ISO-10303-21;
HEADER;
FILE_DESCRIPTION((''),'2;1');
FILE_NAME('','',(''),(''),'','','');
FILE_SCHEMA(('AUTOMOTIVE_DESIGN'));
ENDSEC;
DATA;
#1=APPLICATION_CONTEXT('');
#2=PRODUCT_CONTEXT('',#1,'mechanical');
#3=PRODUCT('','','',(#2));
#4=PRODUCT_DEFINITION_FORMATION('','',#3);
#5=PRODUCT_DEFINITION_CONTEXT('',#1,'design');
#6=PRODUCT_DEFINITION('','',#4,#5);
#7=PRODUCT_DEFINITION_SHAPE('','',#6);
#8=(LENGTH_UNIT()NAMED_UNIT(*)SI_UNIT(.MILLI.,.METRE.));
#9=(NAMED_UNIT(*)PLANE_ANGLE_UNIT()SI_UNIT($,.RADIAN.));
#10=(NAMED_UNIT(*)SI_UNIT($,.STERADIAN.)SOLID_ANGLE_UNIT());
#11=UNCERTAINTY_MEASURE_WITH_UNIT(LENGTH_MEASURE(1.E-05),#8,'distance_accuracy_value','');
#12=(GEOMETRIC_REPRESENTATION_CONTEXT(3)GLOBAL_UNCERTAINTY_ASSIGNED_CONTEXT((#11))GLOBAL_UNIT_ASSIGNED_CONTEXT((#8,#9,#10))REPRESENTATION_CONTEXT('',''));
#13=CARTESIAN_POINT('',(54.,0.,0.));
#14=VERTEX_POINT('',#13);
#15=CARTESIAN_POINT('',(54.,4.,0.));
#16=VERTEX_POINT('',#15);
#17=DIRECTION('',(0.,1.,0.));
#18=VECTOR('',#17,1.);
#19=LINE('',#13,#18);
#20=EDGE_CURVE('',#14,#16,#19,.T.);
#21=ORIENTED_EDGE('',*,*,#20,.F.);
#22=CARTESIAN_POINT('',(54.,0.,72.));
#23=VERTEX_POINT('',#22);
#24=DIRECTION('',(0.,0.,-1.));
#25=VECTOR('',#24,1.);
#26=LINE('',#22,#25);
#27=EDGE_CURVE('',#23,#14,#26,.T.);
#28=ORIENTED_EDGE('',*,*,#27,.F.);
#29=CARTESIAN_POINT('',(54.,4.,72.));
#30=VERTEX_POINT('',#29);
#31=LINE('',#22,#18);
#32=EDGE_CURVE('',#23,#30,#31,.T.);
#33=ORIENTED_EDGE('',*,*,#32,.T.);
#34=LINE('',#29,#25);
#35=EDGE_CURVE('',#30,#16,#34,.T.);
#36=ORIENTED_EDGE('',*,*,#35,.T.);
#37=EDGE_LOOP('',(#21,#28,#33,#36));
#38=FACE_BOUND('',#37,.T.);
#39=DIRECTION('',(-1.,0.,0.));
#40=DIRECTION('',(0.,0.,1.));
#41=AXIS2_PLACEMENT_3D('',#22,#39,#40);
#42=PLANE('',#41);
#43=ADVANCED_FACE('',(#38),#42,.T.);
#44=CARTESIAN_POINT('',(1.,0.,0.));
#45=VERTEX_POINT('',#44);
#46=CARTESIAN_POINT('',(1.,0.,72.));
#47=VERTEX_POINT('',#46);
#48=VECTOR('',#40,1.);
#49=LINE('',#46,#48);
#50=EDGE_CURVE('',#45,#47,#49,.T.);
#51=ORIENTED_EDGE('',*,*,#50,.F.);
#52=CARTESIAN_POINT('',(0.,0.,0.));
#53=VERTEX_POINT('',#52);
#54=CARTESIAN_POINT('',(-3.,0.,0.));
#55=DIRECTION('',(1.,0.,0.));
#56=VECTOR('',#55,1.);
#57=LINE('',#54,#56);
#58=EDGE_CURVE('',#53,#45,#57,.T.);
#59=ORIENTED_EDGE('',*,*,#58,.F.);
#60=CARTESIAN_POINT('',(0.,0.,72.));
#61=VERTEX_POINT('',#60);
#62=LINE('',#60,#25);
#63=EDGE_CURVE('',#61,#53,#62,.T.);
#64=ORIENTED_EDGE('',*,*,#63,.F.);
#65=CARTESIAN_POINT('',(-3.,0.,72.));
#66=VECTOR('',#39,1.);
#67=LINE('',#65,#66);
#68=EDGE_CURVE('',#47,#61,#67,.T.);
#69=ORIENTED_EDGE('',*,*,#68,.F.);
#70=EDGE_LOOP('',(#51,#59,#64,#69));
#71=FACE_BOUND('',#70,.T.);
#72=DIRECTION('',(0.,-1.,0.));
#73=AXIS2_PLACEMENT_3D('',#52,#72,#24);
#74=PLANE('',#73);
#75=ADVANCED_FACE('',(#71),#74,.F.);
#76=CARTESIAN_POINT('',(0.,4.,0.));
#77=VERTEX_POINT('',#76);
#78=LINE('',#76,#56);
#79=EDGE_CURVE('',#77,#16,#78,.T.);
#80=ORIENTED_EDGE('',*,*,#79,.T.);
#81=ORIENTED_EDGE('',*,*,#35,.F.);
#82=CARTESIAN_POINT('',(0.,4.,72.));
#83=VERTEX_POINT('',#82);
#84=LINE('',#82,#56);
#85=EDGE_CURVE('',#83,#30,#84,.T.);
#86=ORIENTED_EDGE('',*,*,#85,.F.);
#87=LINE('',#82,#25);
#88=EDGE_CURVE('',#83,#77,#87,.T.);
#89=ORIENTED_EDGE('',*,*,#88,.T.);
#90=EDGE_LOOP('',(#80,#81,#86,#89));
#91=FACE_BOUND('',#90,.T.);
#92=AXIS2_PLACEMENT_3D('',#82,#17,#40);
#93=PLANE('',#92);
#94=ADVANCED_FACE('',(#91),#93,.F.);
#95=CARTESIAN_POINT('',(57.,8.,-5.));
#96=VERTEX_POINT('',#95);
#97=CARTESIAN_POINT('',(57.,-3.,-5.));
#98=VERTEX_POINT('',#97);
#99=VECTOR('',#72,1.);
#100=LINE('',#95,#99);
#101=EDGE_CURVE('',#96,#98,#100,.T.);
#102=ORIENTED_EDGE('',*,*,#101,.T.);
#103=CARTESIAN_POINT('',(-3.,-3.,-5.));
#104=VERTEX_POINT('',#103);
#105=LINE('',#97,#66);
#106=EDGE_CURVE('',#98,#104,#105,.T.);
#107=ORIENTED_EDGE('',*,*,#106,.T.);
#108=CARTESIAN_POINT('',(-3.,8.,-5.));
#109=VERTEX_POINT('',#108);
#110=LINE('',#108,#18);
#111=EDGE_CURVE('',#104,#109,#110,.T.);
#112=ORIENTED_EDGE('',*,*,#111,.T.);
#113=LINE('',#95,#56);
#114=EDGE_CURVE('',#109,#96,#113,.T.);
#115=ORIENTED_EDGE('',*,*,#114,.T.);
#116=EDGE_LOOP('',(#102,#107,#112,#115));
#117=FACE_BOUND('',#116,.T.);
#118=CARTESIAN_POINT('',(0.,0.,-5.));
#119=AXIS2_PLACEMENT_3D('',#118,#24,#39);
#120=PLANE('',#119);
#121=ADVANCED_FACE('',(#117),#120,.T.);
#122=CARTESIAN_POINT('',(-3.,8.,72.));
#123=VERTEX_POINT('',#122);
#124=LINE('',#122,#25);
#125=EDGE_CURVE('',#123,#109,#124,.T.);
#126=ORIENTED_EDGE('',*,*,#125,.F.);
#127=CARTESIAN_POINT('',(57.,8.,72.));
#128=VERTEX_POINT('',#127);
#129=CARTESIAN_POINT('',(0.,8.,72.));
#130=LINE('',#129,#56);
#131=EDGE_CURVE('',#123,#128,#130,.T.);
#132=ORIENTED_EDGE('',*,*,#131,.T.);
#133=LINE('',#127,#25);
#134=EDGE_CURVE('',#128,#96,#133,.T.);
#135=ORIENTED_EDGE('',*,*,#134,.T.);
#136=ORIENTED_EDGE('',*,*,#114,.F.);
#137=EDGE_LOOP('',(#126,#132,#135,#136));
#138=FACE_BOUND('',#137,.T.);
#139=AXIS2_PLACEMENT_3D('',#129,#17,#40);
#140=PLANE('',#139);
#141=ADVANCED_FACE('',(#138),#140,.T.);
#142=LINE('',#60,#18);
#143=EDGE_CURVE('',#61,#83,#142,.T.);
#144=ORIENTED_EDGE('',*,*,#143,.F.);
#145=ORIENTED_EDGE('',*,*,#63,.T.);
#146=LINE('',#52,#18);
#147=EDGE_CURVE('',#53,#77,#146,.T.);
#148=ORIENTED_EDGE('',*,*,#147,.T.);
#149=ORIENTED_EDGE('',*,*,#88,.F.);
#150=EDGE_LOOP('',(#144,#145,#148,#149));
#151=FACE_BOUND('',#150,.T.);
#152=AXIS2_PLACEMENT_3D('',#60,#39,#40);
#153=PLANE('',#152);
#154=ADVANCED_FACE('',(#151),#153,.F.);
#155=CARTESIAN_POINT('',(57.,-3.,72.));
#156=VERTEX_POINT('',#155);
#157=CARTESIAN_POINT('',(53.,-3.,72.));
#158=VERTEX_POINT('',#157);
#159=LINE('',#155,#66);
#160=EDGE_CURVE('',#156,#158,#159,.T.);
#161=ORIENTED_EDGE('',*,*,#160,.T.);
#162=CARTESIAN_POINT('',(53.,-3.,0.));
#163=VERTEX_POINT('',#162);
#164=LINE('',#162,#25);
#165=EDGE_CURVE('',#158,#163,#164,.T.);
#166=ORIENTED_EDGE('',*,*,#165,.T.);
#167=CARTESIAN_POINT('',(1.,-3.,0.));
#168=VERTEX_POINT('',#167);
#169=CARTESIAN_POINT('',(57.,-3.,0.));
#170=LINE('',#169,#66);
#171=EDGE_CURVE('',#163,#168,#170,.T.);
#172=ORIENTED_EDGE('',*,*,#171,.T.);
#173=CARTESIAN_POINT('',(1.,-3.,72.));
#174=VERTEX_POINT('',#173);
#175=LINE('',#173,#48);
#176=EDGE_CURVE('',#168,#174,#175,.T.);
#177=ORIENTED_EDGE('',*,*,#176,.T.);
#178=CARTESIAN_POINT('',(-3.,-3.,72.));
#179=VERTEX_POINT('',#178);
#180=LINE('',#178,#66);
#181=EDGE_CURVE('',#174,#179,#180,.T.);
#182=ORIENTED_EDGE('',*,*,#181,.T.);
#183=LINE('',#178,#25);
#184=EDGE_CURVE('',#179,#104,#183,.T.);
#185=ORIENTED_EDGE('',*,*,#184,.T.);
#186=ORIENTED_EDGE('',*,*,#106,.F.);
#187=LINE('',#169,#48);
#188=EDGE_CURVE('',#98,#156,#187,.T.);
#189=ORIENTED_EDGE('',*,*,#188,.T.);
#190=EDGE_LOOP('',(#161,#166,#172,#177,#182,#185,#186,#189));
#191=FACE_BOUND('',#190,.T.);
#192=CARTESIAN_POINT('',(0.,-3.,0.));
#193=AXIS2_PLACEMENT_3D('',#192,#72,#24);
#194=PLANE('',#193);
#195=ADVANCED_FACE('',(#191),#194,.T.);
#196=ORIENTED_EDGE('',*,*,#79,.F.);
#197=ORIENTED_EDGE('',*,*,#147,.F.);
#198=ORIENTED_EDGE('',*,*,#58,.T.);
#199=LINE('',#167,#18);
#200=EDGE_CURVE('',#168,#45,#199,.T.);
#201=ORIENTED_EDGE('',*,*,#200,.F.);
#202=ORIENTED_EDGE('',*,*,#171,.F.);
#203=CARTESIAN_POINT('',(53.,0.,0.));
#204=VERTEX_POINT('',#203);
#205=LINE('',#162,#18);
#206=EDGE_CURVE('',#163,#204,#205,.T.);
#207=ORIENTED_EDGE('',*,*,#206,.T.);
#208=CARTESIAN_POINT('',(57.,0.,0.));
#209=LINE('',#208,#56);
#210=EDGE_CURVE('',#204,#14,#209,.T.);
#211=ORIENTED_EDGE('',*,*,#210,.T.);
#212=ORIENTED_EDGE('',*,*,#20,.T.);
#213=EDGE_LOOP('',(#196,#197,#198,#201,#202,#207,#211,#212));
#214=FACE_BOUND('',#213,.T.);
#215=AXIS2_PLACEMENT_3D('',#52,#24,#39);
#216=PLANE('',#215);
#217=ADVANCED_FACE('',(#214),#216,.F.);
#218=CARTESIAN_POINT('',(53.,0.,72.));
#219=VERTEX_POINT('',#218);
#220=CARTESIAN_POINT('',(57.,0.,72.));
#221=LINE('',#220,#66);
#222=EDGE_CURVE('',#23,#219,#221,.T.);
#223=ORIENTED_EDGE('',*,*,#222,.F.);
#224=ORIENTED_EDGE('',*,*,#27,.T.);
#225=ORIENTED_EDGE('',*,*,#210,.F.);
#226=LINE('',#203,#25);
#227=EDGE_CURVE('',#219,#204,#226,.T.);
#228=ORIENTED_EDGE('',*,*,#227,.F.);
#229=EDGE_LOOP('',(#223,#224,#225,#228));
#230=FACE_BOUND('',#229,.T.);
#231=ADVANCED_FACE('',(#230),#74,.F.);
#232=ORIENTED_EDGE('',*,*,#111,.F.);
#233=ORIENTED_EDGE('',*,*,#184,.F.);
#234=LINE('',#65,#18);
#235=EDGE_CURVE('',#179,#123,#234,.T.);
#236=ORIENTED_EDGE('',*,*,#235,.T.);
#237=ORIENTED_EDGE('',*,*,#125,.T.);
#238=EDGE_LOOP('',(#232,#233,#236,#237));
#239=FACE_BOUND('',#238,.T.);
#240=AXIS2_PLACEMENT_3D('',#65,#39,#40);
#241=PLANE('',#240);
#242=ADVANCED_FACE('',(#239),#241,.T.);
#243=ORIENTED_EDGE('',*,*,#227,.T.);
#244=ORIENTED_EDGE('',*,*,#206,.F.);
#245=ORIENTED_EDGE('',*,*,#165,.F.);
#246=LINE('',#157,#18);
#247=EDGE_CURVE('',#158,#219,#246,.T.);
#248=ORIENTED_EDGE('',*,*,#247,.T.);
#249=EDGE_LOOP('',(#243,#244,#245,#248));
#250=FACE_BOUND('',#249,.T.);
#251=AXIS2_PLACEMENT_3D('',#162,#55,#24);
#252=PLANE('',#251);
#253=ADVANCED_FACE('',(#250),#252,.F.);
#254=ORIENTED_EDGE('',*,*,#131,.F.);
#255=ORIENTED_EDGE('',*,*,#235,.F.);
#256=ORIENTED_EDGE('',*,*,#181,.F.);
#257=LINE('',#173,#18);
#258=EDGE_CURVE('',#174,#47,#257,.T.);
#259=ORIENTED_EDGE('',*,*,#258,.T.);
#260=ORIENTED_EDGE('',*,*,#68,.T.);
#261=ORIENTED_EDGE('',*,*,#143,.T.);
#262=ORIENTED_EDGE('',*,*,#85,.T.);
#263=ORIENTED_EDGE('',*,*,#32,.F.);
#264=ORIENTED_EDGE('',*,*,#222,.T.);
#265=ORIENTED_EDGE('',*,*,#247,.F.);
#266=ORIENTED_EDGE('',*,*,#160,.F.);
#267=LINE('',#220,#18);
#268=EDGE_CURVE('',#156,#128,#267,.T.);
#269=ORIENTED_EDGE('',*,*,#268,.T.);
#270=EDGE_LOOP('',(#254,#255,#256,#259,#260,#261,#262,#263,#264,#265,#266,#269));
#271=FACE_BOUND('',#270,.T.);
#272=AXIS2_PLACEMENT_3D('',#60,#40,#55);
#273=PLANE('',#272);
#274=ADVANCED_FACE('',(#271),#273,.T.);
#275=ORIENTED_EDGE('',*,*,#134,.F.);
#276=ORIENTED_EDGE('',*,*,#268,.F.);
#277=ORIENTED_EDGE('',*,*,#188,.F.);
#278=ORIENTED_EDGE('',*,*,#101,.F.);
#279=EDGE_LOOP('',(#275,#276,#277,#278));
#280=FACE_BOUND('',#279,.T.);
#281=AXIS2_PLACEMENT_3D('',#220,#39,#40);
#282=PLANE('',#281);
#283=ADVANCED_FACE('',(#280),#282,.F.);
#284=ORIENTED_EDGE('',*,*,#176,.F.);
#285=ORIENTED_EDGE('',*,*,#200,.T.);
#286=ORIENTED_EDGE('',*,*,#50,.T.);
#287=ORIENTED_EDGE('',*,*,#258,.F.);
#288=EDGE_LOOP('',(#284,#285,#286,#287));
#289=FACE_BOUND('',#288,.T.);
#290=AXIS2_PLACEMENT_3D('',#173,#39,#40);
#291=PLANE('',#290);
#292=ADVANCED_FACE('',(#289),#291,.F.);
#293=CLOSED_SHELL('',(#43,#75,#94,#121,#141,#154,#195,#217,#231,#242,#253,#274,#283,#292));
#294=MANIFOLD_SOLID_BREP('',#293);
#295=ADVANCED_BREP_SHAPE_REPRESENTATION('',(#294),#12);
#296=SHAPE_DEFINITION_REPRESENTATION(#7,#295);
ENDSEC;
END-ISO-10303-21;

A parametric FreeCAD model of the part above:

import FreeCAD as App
import Part
import Sketcher

V = App.Vector
Q = App.Units.Quantity


def add_polygon(sketch, points):
    """Adds a closed chain of lines whose ends are joined by coincident constraints."""
    first, n = sketch.GeometryCount, len(points)
    for a, b in zip(points, points[1:] + points[:1]):
        sketch.addGeometry(Part.LineSegment(App.Vector(*a, 0), App.Vector(*b, 0)), False)
    for i in range(n):
        sketch.addConstraint(Sketcher.Constraint("Coincident", first + i, 2, first + (i + 1) % n, 1))

doc = App.newDocument("Part")
body = doc.addObject("PartDesign::Body", "Body")

# Sketch on XY plane
sketch1 = body.newObject("Sketcher::SketchObject", "Sketch")
sketch1.AttachmentSupport = (doc.getObject("XY_Plane"), [""])
sketch1.MapMode = "FlatFace"
add_polygon(sketch1, [(-3, 0), (0, 0), (0, 4), (54, 4), (54, 0), (57, 0), (57, 8), (-3, 8)])  # lines 0-7
sketch1.addConstraint([
    Sketcher.Constraint("Horizontal", 0),
    Sketcher.Constraint("Vertical", 1),
    Sketcher.Constraint("Horizontal", 2),
    Sketcher.Constraint("Vertical", 3),
    Sketcher.Constraint("Horizontal", 4),
    Sketcher.Constraint("Vertical", 5),
    Sketcher.Constraint("Horizontal", 6),
    Sketcher.Constraint("Vertical", 7),
    Sketcher.Constraint("Coincident", 0, 2, -1, 1),
    Sketcher.Constraint("PointOnObject", 3, 2, -1),
    Sketcher.Constraint("Equal", 0, 4),
    Sketcher.Constraint("DistanceX", 0, 1, 0, 2, Q("3 mm")),
    Sketcher.Constraint("DistanceX", 2, 1, 2, 2, Q("54 mm")),
    Sketcher.Constraint("DistanceY", 1, 1, 1, 2, Q("4 mm")),
    Sketcher.Constraint("DistanceY", 5, 1, 5, 2, Q("8 mm")),
])
pad1 = body.newObject("PartDesign::Pad", "Pad")
pad1.Profile = sketch1
pad1.Length = 72

# Sketch on XZ plane
sketch2 = body.newObject("Sketcher::SketchObject", "Sketch001")
sketch2.AttachmentSupport = (doc.getObject("XZ_Plane"), [""])
sketch2.MapMode = "FlatFace"
add_polygon(sketch2, [(-3, 72), (-3, 0), (1, 0), (1, 72)])  # lines 0-3
add_polygon(sketch2, [(53, 72), (53, 0), (57, 0), (57, 72)])  # lines 4-7
sketch2.addConstraint([
    Sketcher.Constraint("Vertical", 0),
    Sketcher.Constraint("Horizontal", 1),
    Sketcher.Constraint("Vertical", 2),
    Sketcher.Constraint("Horizontal", 3),
    Sketcher.Constraint("Vertical", 4),
    Sketcher.Constraint("Horizontal", 5),
    Sketcher.Constraint("Vertical", 6),
    Sketcher.Constraint("Horizontal", 7),
    Sketcher.Constraint("PointOnObject", 0, 2, -1),
    Sketcher.Constraint("PointOnObject", 4, 2, -1),
    Sketcher.Constraint("Horizontal", 3, 2, 6, 2),
    Sketcher.Constraint("Equal", 3, 5),
    Sketcher.Constraint("DistanceX", 1, 1, 1, 2, Q("4 mm")),
    Sketcher.Constraint("DistanceY", 0, 2, 0, 1, Q("72 mm")),
    Sketcher.Constraint("DistanceX", 0, 2, -1, 1, Q("3 mm")),
    Sketcher.Constraint("DistanceX", -1, 1, 4, 2, Q("53 mm")),
])
pad2 = body.newObject("PartDesign::Pad", "Pad001")
pad2.Profile = sketch2
pad2.Length = 3

# Sketch on XY plane
sketch3 = body.newObject("Sketcher::SketchObject", "Sketch002")
sketch3.AttachmentSupport = (doc.getObject("XY_Plane"), [""])
sketch3.MapMode = "FlatFace"
add_polygon(sketch3, [(57, 8), (57, -3), (-3, -3), (-3, 8)])  # lines 0-3
sketch3.addConstraint([
    Sketcher.Constraint("Vertical", 0),
    Sketcher.Constraint("Horizontal", 1),
    Sketcher.Constraint("Vertical", 2),
    Sketcher.Constraint("Horizontal", 3),
    Sketcher.Constraint("DistanceX", 1, 2, 1, 1, Q("60 mm")),
    Sketcher.Constraint("DistanceY", 0, 2, 0, 1, Q("11 mm")),
    Sketcher.Constraint("DistanceX", -1, 1, 0, 2, Q("57 mm")),
    Sketcher.Constraint("DistanceY", 0, 2, -1, 1, Q("3 mm")),
])
pad3 = body.newObject("PartDesign::Pad", "Pad002")
pad3.Profile = sketch3
pad3.Length = 5
pad3.Reversed = True

doc.recompute()
